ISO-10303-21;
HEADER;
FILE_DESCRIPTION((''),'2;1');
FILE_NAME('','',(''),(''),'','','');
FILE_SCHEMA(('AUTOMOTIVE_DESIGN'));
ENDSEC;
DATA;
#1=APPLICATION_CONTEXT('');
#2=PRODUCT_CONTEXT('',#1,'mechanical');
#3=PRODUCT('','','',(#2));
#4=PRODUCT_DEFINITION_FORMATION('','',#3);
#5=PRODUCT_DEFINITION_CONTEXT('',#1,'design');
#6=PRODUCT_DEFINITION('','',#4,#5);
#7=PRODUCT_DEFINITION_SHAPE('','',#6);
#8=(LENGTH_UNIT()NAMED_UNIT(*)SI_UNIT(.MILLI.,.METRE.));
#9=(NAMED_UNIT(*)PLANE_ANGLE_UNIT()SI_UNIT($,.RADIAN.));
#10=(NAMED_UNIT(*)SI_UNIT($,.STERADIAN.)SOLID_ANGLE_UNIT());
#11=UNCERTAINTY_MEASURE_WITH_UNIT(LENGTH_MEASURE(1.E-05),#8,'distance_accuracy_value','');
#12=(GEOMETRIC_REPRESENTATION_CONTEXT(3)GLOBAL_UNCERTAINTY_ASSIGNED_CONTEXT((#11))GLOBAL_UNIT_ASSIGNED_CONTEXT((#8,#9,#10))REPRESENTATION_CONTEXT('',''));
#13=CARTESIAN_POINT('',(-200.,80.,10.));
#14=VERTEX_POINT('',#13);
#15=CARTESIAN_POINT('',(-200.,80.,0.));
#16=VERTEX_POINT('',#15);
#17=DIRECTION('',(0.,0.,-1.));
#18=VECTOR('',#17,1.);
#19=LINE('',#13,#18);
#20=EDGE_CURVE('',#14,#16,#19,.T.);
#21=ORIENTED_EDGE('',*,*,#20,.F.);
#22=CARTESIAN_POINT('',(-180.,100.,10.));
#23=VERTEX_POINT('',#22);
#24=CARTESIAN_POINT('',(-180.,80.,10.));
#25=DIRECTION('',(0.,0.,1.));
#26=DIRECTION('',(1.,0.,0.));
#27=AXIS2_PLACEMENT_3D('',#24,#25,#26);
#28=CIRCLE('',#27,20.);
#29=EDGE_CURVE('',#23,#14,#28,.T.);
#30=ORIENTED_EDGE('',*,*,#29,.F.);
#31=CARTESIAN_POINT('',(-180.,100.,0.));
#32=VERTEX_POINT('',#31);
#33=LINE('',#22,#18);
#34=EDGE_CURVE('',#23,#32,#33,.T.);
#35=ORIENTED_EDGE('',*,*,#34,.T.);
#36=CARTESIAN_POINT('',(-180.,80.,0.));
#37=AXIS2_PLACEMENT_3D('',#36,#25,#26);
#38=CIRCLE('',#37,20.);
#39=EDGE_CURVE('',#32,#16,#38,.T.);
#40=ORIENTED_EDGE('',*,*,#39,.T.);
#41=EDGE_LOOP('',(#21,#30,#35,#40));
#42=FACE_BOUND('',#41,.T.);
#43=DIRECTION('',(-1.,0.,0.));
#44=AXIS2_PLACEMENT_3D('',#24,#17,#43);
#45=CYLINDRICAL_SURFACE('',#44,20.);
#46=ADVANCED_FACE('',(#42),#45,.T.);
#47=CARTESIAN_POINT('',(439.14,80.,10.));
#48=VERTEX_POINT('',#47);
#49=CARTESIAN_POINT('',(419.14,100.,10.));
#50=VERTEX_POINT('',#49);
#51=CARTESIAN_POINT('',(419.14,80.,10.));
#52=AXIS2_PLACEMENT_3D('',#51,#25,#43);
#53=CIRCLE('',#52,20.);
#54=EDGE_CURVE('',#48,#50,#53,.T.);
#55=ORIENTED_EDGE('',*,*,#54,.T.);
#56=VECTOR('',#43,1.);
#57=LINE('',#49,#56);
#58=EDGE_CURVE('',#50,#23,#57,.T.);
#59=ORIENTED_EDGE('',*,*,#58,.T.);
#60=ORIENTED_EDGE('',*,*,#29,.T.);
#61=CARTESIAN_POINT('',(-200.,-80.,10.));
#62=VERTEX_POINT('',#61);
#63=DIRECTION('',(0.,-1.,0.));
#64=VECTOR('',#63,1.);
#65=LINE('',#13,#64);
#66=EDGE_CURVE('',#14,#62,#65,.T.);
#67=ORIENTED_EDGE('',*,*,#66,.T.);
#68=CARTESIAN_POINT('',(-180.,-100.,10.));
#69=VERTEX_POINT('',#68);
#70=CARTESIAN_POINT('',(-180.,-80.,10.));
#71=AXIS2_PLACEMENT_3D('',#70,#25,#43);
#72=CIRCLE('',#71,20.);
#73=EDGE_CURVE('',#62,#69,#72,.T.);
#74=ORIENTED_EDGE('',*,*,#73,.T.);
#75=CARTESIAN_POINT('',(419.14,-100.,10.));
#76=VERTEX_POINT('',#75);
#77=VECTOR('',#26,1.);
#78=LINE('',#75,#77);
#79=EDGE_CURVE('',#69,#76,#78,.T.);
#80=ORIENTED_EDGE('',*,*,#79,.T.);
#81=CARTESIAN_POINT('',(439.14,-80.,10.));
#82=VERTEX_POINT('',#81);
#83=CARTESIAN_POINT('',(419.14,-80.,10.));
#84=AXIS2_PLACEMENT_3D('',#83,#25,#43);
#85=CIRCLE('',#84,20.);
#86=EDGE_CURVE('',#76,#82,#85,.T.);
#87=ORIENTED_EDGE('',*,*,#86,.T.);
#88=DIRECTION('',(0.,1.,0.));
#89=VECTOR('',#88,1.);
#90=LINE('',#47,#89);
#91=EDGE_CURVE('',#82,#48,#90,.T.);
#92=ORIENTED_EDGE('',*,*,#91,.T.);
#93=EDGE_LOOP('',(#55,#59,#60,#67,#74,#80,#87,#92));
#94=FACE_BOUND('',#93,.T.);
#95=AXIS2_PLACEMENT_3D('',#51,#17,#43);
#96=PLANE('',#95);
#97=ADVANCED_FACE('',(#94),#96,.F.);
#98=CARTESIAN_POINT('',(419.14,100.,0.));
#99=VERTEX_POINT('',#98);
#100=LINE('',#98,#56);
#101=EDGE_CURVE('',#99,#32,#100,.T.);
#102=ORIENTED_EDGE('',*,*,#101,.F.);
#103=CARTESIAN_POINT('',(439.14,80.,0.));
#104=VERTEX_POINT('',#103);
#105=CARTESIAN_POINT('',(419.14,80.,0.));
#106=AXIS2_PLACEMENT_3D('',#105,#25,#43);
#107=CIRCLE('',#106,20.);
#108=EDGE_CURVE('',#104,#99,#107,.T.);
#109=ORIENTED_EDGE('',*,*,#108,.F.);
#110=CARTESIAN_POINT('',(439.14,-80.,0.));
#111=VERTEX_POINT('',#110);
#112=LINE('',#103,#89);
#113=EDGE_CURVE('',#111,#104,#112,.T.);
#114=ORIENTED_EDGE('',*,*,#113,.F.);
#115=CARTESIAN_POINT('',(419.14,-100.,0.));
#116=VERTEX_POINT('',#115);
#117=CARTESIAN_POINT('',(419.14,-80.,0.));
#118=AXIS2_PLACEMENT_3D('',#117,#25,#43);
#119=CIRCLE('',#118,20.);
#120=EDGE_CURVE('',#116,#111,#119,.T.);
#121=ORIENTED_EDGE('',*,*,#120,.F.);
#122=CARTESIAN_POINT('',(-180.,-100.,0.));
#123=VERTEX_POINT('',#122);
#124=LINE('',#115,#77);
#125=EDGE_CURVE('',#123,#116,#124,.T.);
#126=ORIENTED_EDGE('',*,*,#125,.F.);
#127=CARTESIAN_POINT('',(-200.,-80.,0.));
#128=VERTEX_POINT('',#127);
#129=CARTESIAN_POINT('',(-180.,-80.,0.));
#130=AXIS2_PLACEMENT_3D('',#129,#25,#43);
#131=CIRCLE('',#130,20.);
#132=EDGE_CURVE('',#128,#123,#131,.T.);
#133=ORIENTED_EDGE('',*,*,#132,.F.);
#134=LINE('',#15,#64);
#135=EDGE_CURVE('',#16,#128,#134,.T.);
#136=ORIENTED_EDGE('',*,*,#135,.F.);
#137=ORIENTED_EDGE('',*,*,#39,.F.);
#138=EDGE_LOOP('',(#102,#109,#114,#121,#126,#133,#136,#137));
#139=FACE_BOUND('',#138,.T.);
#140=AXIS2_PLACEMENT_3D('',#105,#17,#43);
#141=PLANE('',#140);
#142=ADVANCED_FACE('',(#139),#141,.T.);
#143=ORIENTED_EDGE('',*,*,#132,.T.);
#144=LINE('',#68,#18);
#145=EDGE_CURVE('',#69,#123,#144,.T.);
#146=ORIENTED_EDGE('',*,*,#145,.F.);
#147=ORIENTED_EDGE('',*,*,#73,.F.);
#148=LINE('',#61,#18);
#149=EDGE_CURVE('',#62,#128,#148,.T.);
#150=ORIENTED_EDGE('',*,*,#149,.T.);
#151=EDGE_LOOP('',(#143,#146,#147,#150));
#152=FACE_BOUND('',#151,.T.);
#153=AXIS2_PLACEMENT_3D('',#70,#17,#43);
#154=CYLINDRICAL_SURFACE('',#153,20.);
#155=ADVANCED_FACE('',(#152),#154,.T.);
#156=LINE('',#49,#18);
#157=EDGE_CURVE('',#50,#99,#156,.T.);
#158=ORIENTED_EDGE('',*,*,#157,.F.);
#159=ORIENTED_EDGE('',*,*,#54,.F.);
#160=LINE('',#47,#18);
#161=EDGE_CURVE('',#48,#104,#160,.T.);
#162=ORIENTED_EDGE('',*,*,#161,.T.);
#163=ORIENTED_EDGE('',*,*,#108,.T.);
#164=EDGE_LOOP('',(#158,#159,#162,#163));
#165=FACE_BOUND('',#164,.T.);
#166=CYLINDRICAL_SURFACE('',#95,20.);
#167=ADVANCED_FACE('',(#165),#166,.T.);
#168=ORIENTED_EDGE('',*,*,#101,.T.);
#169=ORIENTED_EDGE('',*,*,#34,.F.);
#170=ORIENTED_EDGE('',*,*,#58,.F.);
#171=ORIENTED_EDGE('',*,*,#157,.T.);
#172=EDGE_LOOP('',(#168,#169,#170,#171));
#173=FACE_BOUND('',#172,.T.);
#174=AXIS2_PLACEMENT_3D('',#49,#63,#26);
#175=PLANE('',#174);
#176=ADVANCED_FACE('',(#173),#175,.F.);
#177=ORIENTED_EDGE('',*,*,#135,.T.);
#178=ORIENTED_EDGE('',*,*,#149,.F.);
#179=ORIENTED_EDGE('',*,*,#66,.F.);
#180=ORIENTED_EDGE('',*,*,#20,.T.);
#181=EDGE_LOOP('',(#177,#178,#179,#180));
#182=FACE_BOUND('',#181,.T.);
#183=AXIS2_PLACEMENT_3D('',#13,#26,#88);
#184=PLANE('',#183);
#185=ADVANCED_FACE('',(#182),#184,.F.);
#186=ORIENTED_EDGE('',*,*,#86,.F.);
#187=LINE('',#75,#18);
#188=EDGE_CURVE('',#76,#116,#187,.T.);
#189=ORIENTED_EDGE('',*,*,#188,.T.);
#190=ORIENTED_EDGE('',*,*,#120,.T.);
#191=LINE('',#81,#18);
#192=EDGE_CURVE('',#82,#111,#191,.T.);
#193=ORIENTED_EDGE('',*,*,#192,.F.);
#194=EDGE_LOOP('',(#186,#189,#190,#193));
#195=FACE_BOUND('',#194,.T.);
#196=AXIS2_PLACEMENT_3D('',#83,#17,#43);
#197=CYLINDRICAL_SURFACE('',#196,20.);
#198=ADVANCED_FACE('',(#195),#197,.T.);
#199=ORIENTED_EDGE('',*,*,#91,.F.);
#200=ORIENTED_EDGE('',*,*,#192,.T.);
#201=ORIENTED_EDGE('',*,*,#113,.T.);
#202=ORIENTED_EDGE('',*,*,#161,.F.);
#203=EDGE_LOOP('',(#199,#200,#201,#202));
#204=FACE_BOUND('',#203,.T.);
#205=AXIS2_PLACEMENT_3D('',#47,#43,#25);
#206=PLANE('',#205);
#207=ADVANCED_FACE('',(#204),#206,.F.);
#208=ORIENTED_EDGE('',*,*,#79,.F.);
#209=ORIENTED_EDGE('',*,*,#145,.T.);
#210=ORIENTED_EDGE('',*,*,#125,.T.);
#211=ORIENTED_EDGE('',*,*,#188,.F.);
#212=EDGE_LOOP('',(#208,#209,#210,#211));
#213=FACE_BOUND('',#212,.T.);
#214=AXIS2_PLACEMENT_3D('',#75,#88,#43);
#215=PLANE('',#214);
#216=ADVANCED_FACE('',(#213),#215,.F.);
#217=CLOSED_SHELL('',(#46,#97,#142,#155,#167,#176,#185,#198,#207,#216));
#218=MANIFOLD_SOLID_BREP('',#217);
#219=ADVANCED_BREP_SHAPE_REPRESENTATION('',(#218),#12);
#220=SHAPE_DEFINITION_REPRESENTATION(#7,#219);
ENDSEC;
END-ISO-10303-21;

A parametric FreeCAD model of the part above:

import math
import FreeCAD as App
import Part
import Sketcher
from FreeCAD import Vector
Q = App.Units.Quantity

doc = App.newDocument("Part")
params = doc.addObject("Spreadsheet::Sheet", "Params")
for row, (alias, value) in enumerate([
    ("sketch1_radius", "20 mm"),
    ("sketch1_height", "160 mm"),
    ("sketch1_width", "599.14 mm"),
    ("pad1_length", "10 mm"),
], start=1):
    params.set(f"A{row}", alias)
    params.set(f"B{row}", "=" + value)
    params.setAlias(f"B{row}", alias)

body = doc.addObject("PartDesign::Body", "Body")

# Sketch on XY plane
sketch1 = doc.addObject("Sketcher::SketchObject", "Sketch")
body.addObject(sketch1)
sketch1.AttachmentSupport = (doc.XY_Plane, [""])
sketch1.MapMode = "FlatFace"
sketch1.addGeometry(Part.LineSegment(Vector(419, 100, 0), Vector(-180, 100, 0)), False)
sketch1.addGeometry(Part.ArcOfCircle(Part.Circle(Vector(-180, 80, 0), Vector(0, 0, 1), 20), math.radians(90), math.radians(180)), False)
sketch1.addGeometry(Part.LineSegment(Vector(-200, 80, 0), Vector(-200, -80, 0)), False)
sketch1.addGeometry(Part.ArcOfCircle(Part.Circle(Vector(-180, -80, 0), Vector(0, 0, 1), 20), math.radians(180), math.radians(270)), False)
sketch1.addGeometry(Part.LineSegment(Vector(-180, -100, 0), Vector(419, -100, 0)), False)
sketch1.addGeometry(Part.ArcOfCircle(Part.Circle(Vector(419, -80, 0), Vector(0, 0, 1), 20), math.radians(-90), math.radians(0)), False)
sketch1.addGeometry(Part.LineSegment(Vector(439, -80, 0), Vector(439, 80, 0)), False)
sketch1.addGeometry(Part.ArcOfCircle(Part.Circle(Vector(419, 80, 0), Vector(0, 0, 1), 20), math.radians(0), math.radians(90)), False)
sketch1.addConstraint(Sketcher.Constraint("Tangent", 0, 2, 1, 1))
sketch1.addConstraint(Sketcher.Constraint("Tangent", 1, 2, 2, 1))
sketch1.addConstraint(Sketcher.Constraint("Tangent", 2, 2, 3, 1))
sketch1.addConstraint(Sketcher.Constraint("Tangent", 3, 2, 4, 1))
sketch1.addConstraint(Sketcher.Constraint("Tangent", 4, 2, 5, 1))
sketch1.addConstraint(Sketcher.Constraint("Tangent", 5, 2, 6, 1))
sketch1.addConstraint(Sketcher.Constraint("Tangent", 6, 2, 7, 1))
sketch1.addConstraint(Sketcher.Constraint("Tangent", 7, 2, 0, 1))
sketch1.addConstraint(Sketcher.Constraint("Horizontal", 0))
sketch1.addConstraint(Sketcher.Constraint("Vertical", 2))
sketch1.addConstraint(Sketcher.Constraint("Horizontal", 4))
sketch1.addConstraint(Sketcher.Constraint("Vertical", 6))
sketch1.addConstraint(Sketcher.Constraint("Equal", 1, 3))
sketch1.addConstraint(Sketcher.Constraint("Equal", 3, 5))
sketch1.addConstraint(Sketcher.Constraint("Equal", 5, 7))
sketch1.addConstraint(Sketcher.Constraint("Radius", 1, Q("20 mm")))
sketch1.addConstraint(Sketcher.Constraint("DistanceY", 2, 2, 2, 1, Q("160 mm")))
sketch1.addConstraint(Sketcher.Constraint("DistanceX", 1, 3, -1, 1, Q("180 mm")))
sketch1.addConstraint(Sketcher.Constraint("DistanceY", -1, 1, 1, 3, Q("80 mm")))
sketch1.addConstraint(Sketcher.Constraint("DistanceX", 0, 2, 0, 1, Q("599.14 mm")))
sketch1.setExpression("Constraints[15]", "Params.sketch1_radius")
sketch1.setExpression("Constraints[16]", "Params.sketch1_height")
sketch1.setExpression("Constraints[19]", "Params.sketch1_width")
pad1 = doc.addObject("PartDesign::Pad", "Pad")
body.addObject(pad1)
pad1.Profile = sketch1
pad1.setExpression("Length", "Params.pad1_length")

doc.recompute()
